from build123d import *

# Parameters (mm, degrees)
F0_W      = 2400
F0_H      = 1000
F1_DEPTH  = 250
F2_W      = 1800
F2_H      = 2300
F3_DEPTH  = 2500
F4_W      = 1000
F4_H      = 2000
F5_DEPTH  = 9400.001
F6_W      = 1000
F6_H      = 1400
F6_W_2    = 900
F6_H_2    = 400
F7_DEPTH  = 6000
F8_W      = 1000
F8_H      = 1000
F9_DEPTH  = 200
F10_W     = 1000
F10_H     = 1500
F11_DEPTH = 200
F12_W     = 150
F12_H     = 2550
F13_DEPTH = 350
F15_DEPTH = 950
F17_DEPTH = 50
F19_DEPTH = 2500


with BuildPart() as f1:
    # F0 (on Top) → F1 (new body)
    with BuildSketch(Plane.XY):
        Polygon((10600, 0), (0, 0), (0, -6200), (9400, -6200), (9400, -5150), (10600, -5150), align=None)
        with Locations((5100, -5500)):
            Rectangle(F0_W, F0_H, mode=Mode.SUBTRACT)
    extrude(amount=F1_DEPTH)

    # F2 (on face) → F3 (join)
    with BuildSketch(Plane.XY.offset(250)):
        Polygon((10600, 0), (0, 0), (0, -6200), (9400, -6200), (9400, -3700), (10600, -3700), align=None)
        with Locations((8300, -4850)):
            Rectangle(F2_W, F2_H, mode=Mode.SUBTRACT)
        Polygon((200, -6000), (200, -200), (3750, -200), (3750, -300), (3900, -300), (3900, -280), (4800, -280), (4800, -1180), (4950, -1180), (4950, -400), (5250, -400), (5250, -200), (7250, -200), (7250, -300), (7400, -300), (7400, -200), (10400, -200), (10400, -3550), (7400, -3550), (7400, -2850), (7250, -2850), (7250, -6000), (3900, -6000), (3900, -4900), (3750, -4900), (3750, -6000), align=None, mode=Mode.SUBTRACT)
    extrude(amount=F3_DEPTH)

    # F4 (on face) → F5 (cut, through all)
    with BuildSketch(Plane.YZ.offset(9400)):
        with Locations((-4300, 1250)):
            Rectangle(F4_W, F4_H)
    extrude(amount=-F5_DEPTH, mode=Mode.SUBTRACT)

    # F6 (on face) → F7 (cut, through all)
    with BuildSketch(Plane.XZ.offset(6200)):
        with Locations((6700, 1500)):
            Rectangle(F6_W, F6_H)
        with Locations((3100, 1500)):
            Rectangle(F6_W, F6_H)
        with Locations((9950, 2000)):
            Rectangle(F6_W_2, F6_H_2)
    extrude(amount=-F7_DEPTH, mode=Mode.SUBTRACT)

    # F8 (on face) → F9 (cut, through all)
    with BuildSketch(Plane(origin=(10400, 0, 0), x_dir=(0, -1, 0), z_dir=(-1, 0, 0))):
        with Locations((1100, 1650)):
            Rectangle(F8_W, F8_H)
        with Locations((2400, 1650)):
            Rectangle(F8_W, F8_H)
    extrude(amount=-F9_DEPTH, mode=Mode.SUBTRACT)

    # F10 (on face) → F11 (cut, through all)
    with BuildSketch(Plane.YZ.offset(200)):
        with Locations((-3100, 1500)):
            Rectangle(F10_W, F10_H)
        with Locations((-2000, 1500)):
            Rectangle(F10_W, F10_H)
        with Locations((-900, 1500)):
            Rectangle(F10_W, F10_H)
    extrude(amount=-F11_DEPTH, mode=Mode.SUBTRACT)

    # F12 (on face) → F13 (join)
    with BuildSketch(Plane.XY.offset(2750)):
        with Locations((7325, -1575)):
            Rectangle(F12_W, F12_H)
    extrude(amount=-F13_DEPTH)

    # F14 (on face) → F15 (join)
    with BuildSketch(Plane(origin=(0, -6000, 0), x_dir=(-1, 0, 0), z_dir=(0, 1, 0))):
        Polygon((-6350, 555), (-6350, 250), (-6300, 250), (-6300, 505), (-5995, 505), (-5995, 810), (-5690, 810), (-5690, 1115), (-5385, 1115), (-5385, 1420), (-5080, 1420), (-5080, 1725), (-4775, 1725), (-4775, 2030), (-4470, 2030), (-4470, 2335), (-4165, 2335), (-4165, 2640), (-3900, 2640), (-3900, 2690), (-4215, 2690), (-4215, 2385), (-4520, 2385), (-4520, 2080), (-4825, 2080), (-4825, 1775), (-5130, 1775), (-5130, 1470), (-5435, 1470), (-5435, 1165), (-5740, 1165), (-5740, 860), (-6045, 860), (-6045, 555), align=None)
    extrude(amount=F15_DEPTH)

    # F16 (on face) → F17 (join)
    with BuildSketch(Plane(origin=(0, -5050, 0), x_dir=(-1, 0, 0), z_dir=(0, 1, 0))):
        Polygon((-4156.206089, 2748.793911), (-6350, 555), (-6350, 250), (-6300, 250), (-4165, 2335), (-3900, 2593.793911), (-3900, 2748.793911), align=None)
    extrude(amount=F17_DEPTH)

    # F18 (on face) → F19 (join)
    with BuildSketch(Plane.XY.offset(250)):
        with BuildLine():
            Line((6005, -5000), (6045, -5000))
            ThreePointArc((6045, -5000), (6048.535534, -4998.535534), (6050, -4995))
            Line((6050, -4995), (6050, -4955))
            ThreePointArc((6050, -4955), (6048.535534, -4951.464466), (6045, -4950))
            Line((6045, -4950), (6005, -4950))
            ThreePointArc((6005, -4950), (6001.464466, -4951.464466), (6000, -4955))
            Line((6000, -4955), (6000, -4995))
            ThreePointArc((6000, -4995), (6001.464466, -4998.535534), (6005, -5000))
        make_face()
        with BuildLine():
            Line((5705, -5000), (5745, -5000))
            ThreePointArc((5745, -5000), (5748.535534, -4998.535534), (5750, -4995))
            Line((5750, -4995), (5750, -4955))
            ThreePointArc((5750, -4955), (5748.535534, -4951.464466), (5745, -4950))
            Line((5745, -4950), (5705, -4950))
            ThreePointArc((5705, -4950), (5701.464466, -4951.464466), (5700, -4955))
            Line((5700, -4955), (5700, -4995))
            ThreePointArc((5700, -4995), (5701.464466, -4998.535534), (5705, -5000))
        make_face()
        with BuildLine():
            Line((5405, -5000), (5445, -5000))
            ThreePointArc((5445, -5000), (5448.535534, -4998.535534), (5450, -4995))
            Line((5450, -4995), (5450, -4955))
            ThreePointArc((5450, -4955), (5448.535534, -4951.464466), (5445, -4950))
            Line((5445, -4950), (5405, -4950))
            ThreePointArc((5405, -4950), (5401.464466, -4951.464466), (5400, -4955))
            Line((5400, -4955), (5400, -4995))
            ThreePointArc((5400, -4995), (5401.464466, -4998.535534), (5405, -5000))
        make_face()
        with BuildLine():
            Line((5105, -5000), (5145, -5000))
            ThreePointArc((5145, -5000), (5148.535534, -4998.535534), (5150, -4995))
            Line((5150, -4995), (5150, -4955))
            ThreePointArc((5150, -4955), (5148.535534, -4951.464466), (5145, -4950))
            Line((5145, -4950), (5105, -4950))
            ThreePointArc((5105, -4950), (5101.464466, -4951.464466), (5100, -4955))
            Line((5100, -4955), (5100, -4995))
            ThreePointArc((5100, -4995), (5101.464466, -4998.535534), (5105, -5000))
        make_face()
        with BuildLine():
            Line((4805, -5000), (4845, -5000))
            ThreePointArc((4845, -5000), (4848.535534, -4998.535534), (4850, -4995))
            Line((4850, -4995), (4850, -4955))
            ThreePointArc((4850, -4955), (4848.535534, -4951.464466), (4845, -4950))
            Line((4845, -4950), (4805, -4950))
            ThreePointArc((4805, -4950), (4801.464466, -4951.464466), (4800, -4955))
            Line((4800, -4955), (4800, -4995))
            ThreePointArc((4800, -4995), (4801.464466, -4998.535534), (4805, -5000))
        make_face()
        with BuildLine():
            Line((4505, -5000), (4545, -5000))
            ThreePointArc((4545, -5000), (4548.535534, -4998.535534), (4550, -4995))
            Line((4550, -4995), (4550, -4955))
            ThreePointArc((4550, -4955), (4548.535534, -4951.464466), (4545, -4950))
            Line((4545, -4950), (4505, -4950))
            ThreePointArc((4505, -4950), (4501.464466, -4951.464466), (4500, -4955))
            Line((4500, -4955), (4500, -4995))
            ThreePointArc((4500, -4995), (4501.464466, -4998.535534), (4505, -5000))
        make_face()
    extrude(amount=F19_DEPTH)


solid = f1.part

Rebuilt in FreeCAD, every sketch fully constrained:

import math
import FreeCAD as App
import Part
import Sketcher
from FreeCAD import Vector
Q = App.Units.Quantity

doc = App.newDocument("Part")
body = doc.addObject("PartDesign::Body", "Body")

sketch1 = body.newObject("Sketcher::SketchObject", "Sketch")
sketch1.AttachmentSupport = (doc.getObject("XY_Plane"), [""])
sketch1.MapMode = "FlatFace"
sketch1.addGeometry([
    Part.LineSegment(Vector(10600, 0, 0), Vector(0, 0, 0)),
    Part.LineSegment(Vector(0, 0, 0), Vector(0, -6200, 0)),
    Part.LineSegment(Vector(0, -6200, 0), Vector(9400, -6200, 0)),
    Part.LineSegment(Vector(9400, -6200, 0), Vector(9400, -5150, 0)),
    Part.LineSegment(Vector(9400, -5150, 0), Vector(10600, -5150, 0)),
    Part.LineSegment(Vector(10600, -5150, 0), Vector(10600, 0, 0)),
    Part.LineSegment(Vector(6300, -6000, 0), Vector(3900, -6000, 0)),
    Part.LineSegment(Vector(3900, -6000, 0), Vector(3900, -5000, 0)),
    Part.LineSegment(Vector(3900, -5000, 0), Vector(6300, -5000, 0)),
    Part.LineSegment(Vector(6300, -5000, 0), Vector(6300, -6000, 0)),
], False)
sketch1.addConstraint([
    Sketcher.Constraint("Coincident", 0, 2, 1, 1),
    Sketcher.Constraint("Coincident", 1, 2, 2, 1),
    Sketcher.Constraint("Coincident", 2, 2, 3, 1),
    Sketcher.Constraint("Coincident", 3, 2, 4, 1),
    Sketcher.Constraint("Coincident", 4, 2, 5, 1),
    Sketcher.Constraint("Coincident", 5, 2, 0, 1),
    Sketcher.Constraint("Coincident", 6, 2, 7, 1),
    Sketcher.Constraint("Coincident", 7, 2, 8, 1),
    Sketcher.Constraint("Coincident", 8, 2, 9, 1),
    Sketcher.Constraint("Coincident", 9, 2, 6, 1),
    Sketcher.Constraint("Horizontal", 0),
    Sketcher.Constraint("Vertical", 1),
    Sketcher.Constraint("Horizontal", 2),
    Sketcher.Constraint("Vertical", 3),
    Sketcher.Constraint("Horizontal", 4),
    Sketcher.Constraint("Vertical", 5),
    Sketcher.Constraint("Horizontal", 6),
    Sketcher.Constraint("Vertical", 7),
    Sketcher.Constraint("Horizontal", 8),
    Sketcher.Constraint("Vertical", 9),
    Sketcher.Constraint("Coincident", 0, 2, -1, 1),
    Sketcher.Constraint("DistanceX", 0, 2, 0, 1, Q("10600 mm")),
    Sketcher.Constraint("DistanceX", 2, 1, 2, 2, Q("9400 mm")),
    Sketcher.Constraint("DistanceX", 6, 2, 6, 1, Q("2400 mm")),
    Sketcher.Constraint("DistanceY", 1, 2, 1, 1, Q("6200 mm")),
    Sketcher.Constraint("DistanceY", 3, 1, 3, 2, Q("1050 mm")),
    Sketcher.Constraint("DistanceY", 7, 1, 7, 2, Q("1000 mm")),
    Sketcher.Constraint("DistanceX", -1, 1, 6, 2, Q("3900 mm")),
    Sketcher.Constraint("DistanceY", 6, 2, -1, 1, Q("6000 mm")),
])
pad1 = body.newObject("PartDesign::Pad", "Pad")
pad1.Profile = sketch1
pad1.Length = 250

sketch2 = body.newObject("Sketcher::SketchObject", "Sketch001")
sketch2.AttachmentSupport = (doc.getObject("XY_Plane"), [""])
sketch2.MapMode = "FlatFace"
sketch2.AttachmentOffset = App.Placement(Vector(0, 0, 250), App.Rotation())
sketch2.addGeometry([
    Part.LineSegment(Vector(10600, 0, 0), Vector(0, 0, 0)),
    Part.LineSegment(Vector(0, 0, 0), Vector(0, -6200, 0)),
    Part.LineSegment(Vector(0, -6200, 0), Vector(9400, -6200, 0)),
    Part.LineSegment(Vector(9400, -6200, 0), Vector(9400, -3700, 0)),
    Part.LineSegment(Vector(9400, -3700, 0), Vector(10600, -3700, 0)),
    Part.LineSegment(Vector(10600, -3700, 0), Vector(10600, 0, 0)),
    Part.LineSegment(Vector(9200, -6000, 0), Vector(7400, -6000, 0)),
    Part.LineSegment(Vector(7400, -6000, 0), Vector(7400, -3700, 0)),
    Part.LineSegment(Vector(7400, -3700, 0), Vector(9200, -3700, 0)),
    Part.LineSegment(Vector(9200, -3700, 0), Vector(9200, -6000, 0)),
    Part.LineSegment(Vector(3750, -6000, 0), Vector(200, -6000, 0)),
    Part.LineSegment(Vector(200, -6000, 0), Vector(200, -200, 0)),
    Part.LineSegment(Vector(200, -200, 0), Vector(3750, -200, 0)),
    Part.LineSegment(Vector(3750, -200, 0), Vector(3750, -300, 0)),
    Part.LineSegment(Vector(3750, -300, 0), Vector(3900, -300, 0)),
    Part.LineSegment(Vector(3900, -300, 0), Vector(3900, -280, 0)),
    Part.LineSegment(Vector(3900, -280, 0), Vector(4800, -280, 0)),
    Part.LineSegment(Vector(4800, -280, 0), Vector(4800, -1180, 0)),
    Part.LineSegment(Vector(4800, -1180, 0), Vector(4950, -1180, 0)),
    Part.LineSegment(Vector(4950, -1180, 0), Vector(4950, -400, 0)),
    Part.LineSegment(Vector(4950, -400, 0), Vector(5250, -400, 0)),
    Part.LineSegment(Vector(5250, -400, 0), Vector(5250, -200, 0)),
    Part.LineSegment(Vector(5250, -200, 0), Vector(7250, -200, 0)),
    Part.LineSegment(Vector(7250, -200, 0), Vector(7250, -300, 0)),
    Part.LineSegment(Vector(7250, -300, 0), Vector(7400, -300, 0)),
    Part.LineSegment(Vector(7400, -300, 0), Vector(7400, -200, 0)),
    Part.LineSegment(Vector(7400, -200, 0), Vector(10400, -200, 0)),
    Part.LineSegment(Vector(10400, -200, 0), Vector(10400, -3550, 0)),
    Part.LineSegment(Vector(10400, -3550, 0), Vector(7400, -3550, 0)),
    Part.LineSegment(Vector(7400, -3550, 0), Vector(7400, -2850, 0)),
    Part.LineSegment(Vector(7400, -2850, 0), Vector(7250, -2850, 0)),
    Part.LineSegment(Vector(7250, -2850, 0), Vector(7250, -6000, 0)),
    Part.LineSegment(Vector(7250, -6000, 0), Vector(3900, -6000, 0)),
    Part.LineSegment(Vector(3900, -6000, 0), Vector(3900, -4900, 0)),
    Part.LineSegment(Vector(3900, -4900, 0), Vector(3750, -4900, 0)),
    Part.LineSegment(Vector(3750, -4900, 0), Vector(3750, -6000, 0)),
], False)
sketch2.addConstraint([
    Sketcher.Constraint("Coincident", 0, 2, 1, 1),
    Sketcher.Constraint("Coincident", 1, 2, 2, 1),
    Sketcher.Constraint("Coincident", 2, 2, 3, 1),
    Sketcher.Constraint("Coincident", 3, 2, 4, 1),
    Sketcher.Constraint("Coincident", 4, 2, 5, 1),
    Sketcher.Constraint("Coincident", 5, 2, 0, 1),
    Sketcher.Constraint("Coincident", 6, 2, 7, 1),
    Sketcher.Constraint("Coincident", 7, 2, 8, 1),
    Sketcher.Constraint("Coincident", 8, 2, 9, 1),
    Sketcher.Constraint("Coincident", 9, 2, 6, 1),
    Sketcher.Constraint("Coincident", 10, 2, 11, 1),
    Sketcher.Constraint("Coincident", 11, 2, 12, 1),
    Sketcher.Constraint("Coincident", 12, 2, 13, 1),
    Sketcher.Constraint("Coincident", 13, 2, 14, 1),
    Sketcher.Constraint("Coincident", 14, 2, 15, 1),
    Sketcher.Constraint("Coincident", 15, 2, 16, 1),
    Sketcher.Constraint("Coincident", 16, 2, 17, 1),
    Sketcher.Constraint("Coincident", 17, 2, 18, 1),
    Sketcher.Constraint("Coincident", 18, 2, 19, 1),
    Sketcher.Constraint("Coincident", 19, 2, 20, 1),
    Sketcher.Constraint("Coincident", 20, 2, 21, 1),
    Sketcher.Constraint("Coincident", 21, 2, 22, 1),
    Sketcher.Constraint("Coincident", 22, 2, 23, 1),
    Sketcher.Constraint("Coincident", 23, 2, 24, 1),
    Sketcher.Constraint("Coincident", 24, 2, 25, 1),
    Sketcher.Constraint("Coincident", 25, 2, 26, 1),
    Sketcher.Constraint("Coincident", 26, 2, 27, 1),
    Sketcher.Constraint("Coincident", 27, 2, 28, 1),
    Sketcher.Constraint("Coincident", 28, 2, 29, 1),
    Sketcher.Constraint("Coincident", 29, 2, 30, 1),
    Sketcher.Constraint("Coincident", 30, 2, 31, 1),
    Sketcher.Constraint("Coincident", 31, 2, 32, 1),
    Sketcher.Constraint("Coincident", 32, 2, 33, 1),
    Sketcher.Constraint("Coincident", 33, 2, 34, 1),
    Sketcher.Constraint("Coincident", 34, 2, 35, 1),
    Sketcher.Constraint("Coincident", 35, 2, 10, 1),
    Sketcher.Constraint("Horizontal", 0),
    Sketcher.Constraint("Vertical", 1),
    Sketcher.Constraint("Horizontal", 2),
    Sketcher.Constraint("Vertical", 3),
    Sketcher.Constraint("Horizontal", 4),
    Sketcher.Constraint("Vertical", 5),
    Sketcher.Constraint("Horizontal", 6),
    Sketcher.Constraint("Vertical", 7),
    Sketcher.Constraint("Horizontal", 8),
    Sketcher.Constraint("Vertical", 9),
    Sketcher.Constraint("Horizontal", 10),
    Sketcher.Constraint("Vertical", 11),
    Sketcher.Constraint("Horizontal", 12),
    Sketcher.Constraint("Vertical", 13),
    Sketcher.Constraint("Horizontal", 14),
    Sketcher.Constraint("Vertical", 15),
    Sketcher.Constraint("Horizontal", 16),
    Sketcher.Constraint("Vertical", 17),
    Sketcher.Constraint("Horizontal", 18),
    Sketcher.Constraint("Vertical", 19),
    Sketcher.Constraint("Horizontal", 20),
    Sketcher.Constraint("Vertical", 21),
    Sketcher.Constraint("Horizontal", 22),
    Sketcher.Constraint("Vertical", 23),
    Sketcher.Constraint("Horizontal", 24),
    Sketcher.Constraint("Vertical", 25),
    Sketcher.Constraint("Horizontal", 26),
    Sketcher.Constraint("Vertical", 27),
    Sketcher.Constraint("Horizontal", 28),
    Sketcher.Constraint("Vertical", 29),
    Sketcher.Constraint("Horizontal", 30),
    Sketcher.Constraint("Vertical", 31),
    Sketcher.Constraint("Horizontal", 32),
    Sketcher.Constraint("Vertical", 33),
    Sketcher.Constraint("Horizontal", 34),
    Sketcher.Constraint("Vertical", 35),
    Sketcher.Constraint("Coincident", 0, 2, -1, 1),
    Sketcher.Constraint("Horizontal", 4, 2, 7, 2),
    Sketcher.Constraint("Horizontal", 9, 2, 10, 2),
    Sketcher.Constraint("Horizontal", 12, 2, 21, 2),
    Sketcher.Constraint("Horizontal", 14, 2, 23, 2),
    Sketcher.Constraint("Horizontal", 22, 2, 25, 2),
    Sketcher.Constraint("Horizontal", 10, 2, 31, 2),
    Sketcher.Constraint("Vertical", 7, 2, 24, 2),
    Sketcher.Constraint("Vertical", 25, 2, 28, 2),
    Sketcher.Constraint("Vertical", 23, 2, 30, 2),
    Sketcher.Constraint("Vertical", 15, 2, 32, 2),
    Sketcher.Constraint("Vertical", 13, 2, 34, 2),
    Sketcher.Constraint("Equal", 14, 18),
    Sketcher.Constraint("Equal", 18, 24),
    Sketcher.Constraint("Equal", 16, 17),
    Sketcher.Constraint("Equal", 32, 27),
    Sketcher.Constraint("DistanceX", 0, 2, 0, 1, Q("10600 mm")),
    Sketcher.Constraint("DistanceX", 2, 1, 2, 2, Q("9400 mm")),
    Sketcher.Constraint("DistanceX", 6, 2, 6, 1, Q("1800 mm")),
    Sketcher.Constraint("DistanceX", 10, 2, 10, 1, Q("3550 mm")),
    Sketcher.Constraint("DistanceX", 14, 1, 14, 2, Q("150 mm")),
    Sketcher.Constraint("DistanceX", 16, 1, 16, 2, Q("900 mm")),
    Sketcher.Constraint("DistanceX", 20, 1, 20, 2, Q("300 mm")),
    Sketcher.Constraint("DistanceX", 22, 1, 22, 2, Q("2000 mm")),
    Sketcher.Constraint("DistanceX", 26, 1, 26, 2, Q("3000 mm")),
    Sketcher.Constraint("DistanceY", 1, 2, 1, 1, Q("6200 mm")),
    Sketcher.Constraint("DistanceY", 3, 1, 3, 2, Q("2500 mm")),
    Sketcher.Constraint("DistanceY", 7, 1, 7, 2, Q("2300 mm")),
    Sketcher.Constraint("DistanceY", 11, 1, 11, 2, Q("5800 mm")),
    Sketcher.Constraint("DistanceY", 13, 2, 13, 1, Q("100 mm")),
    Sketcher.Constraint("DistanceY", 15, 1, 15, 2, Q("20 mm")),
    Sketcher.Constraint("DistanceY", 19, 1, 19, 2, Q("780 mm")),
    Sketcher.Constraint("DistanceY", 29, 1, 29, 2, Q("700 mm")),
    Sketcher.Constraint("DistanceY", 33, 1, 33, 2, Q("1100 mm")),
    Sketcher.Constraint("DistanceX", -1, 1, 6, 2, Q("7400 mm")),
])
pad2 = body.newObject("PartDesign::Pad", "Pad001")
pad2.Profile = sketch2
pad2.Length = 2500

sketch3 = body.newObject("Sketcher::SketchObject", "Sketch002")
sketch3.AttachmentSupport = (doc.getObject("YZ_Plane"), [""])
sketch3.MapMode = "FlatFace"
sketch3.AttachmentOffset = App.Placement(Vector(0, 0, 9400), App.Rotation())
sketch3.addGeometry([
    Part.LineSegment(Vector(-4800, 2250, 0), Vector(-4800, 250, 0)),
    Part.LineSegment(Vector(-4800, 250, 0), Vector(-3800, 250, 0)),
    Part.LineSegment(Vector(-3800, 250, 0), Vector(-3800, 2250, 0)),
    Part.LineSegment(Vector(-3800, 2250, 0), Vector(-4800, 2250, 0)),
], False)
sketch3.addConstraint([
    Sketcher.Constraint("Coincident", 0, 2, 1, 1),
    Sketcher.Constraint("Coincident", 1, 2, 2, 1),
    Sketcher.Constraint("Coincident", 2, 2, 3, 1),
    Sketcher.Constraint("Coincident", 3, 2, 0, 1),
    Sketcher.Constraint("Vertical", 0),
    Sketcher.Constraint("Horizontal", 1),
    Sketcher.Constraint("Vertical", 2),
    Sketcher.Constraint("Horizontal", 3),
    Sketcher.Constraint("DistanceX", 1, 1, 1, 2, Q("1000 mm")),
    Sketcher.Constraint("DistanceY", 0, 2, 0, 1, Q("2000 mm")),
    Sketcher.Constraint("DistanceX", 0, 2, -1, 1, Q("4800 mm")),
    Sketcher.Constraint("DistanceY", -1, 1, 0, 2, Q("250 mm")),
])
pocket1 = body.newObject("PartDesign::Pocket", "Pocket")
pocket1.Profile = sketch3
pocket1.Type = "ThroughAll"

sketch4 = body.newObject("Sketcher::SketchObject", "Sketch003")
sketch4.AttachmentSupport = (doc.getObject("XZ_Plane"), [""])
sketch4.MapMode = "FlatFace"
sketch4.AttachmentOffset = App.Placement(Vector(0, 0, 6200), App.Rotation())
sketch4.addGeometry([
    Part.LineSegment(Vector(6200, 2200, 0), Vector(6200, 800, 0)),
    Part.LineSegment(Vector(6200, 800, 0), Vector(7200, 800, 0)),
    Part.LineSegment(Vector(7200, 800, 0), Vector(7200, 2200, 0)),
    Part.LineSegment(Vector(7200, 2200, 0), Vector(6200, 2200, 0)),
    Part.LineSegment(Vector(2600, 2200, 0), Vector(2600, 800, 0)),
    Part.LineSegment(Vector(2600, 800, 0), Vector(3600, 800, 0)),
    Part.LineSegment(Vector(3600, 800, 0), Vector(3600, 2200, 0)),
    Part.LineSegment(Vector(3600, 2200, 0), Vector(2600, 2200, 0)),
    Part.LineSegment(Vector(9500, 2200, 0), Vector(9500, 1800, 0)),
    Part.LineSegment(Vector(9500, 1800, 0), Vector(10400, 1800, 0)),
    Part.LineSegment(Vector(10400, 1800, 0), Vector(10400, 2200, 0)),
    Part.LineSegment(Vector(10400, 2200, 0), Vector(9500, 2200, 0)),
], False)
sketch4.addConstraint([
    Sketcher.Constraint("Coincident", 0, 2, 1, 1),
    Sketcher.Constraint("Coincident", 1, 2, 2, 1),
    Sketcher.Constraint("Coincident", 2, 2, 3, 1),
    Sketcher.Constraint("Coincident", 3, 2, 0, 1),
    Sketcher.Constraint("Coincident", 4, 2, 5, 1),
    Sketcher.Constraint("Coincident", 5, 2, 6, 1),
    Sketcher.Constraint("Coincident", 6, 2, 7, 1),
    Sketcher.Constraint("Coincident", 7, 2, 4, 1),
    Sketcher.Constraint("Coincident", 8, 2, 9, 1),
    Sketcher.Constraint("Coincident", 9, 2, 10, 1),
    Sketcher.Constraint("Coincident", 10, 2, 11, 1),
    Sketcher.Constraint("Coincident", 11, 2, 8, 1),
    Sketcher.Constraint("Vertical", 0),
    Sketcher.Constraint("Horizontal", 1),
    Sketcher.Constraint("Vertical", 2),
    Sketcher.Constraint("Horizontal", 3),
    Sketcher.Constraint("Vertical", 4),
    Sketcher.Constraint("Horizontal", 5),
    Sketcher.Constraint("Vertical", 6),
    Sketcher.Constraint("Horizontal", 7),
    Sketcher.Constraint("Vertical", 8),
    Sketcher.Constraint("Horizontal", 9),
    Sketcher.Constraint("Vertical", 10),
    Sketcher.Constraint("Horizontal", 11),
    Sketcher.Constraint("Horizontal", 1, 2, 4, 2),
    Sketcher.Constraint("Horizontal", 3, 2, 6, 2),
    Sketcher.Constraint("Horizontal", 7, 2, 10, 2),
    Sketcher.Constraint("Equal", 3, 5),
    Sketcher.Constraint("DistanceX", 1, 1, 1, 2, Q("1000 mm")),
    Sketcher.Constraint("DistanceX", 9, 1, 9, 2, Q("900 mm")),
    Sketcher.Constraint("DistanceY", 0, 2, 0, 1, Q("1400 mm")),
    Sketcher.Constraint("DistanceY", 8, 2, 8, 1, Q("400 mm")),
    Sketcher.Constraint("DistanceX", -1, 1, 0, 2, Q("6200 mm")),
    Sketcher.Constraint("DistanceY", -1, 1, 0, 2, Q("800 mm")),
    Sketcher.Constraint("DistanceX", -1, 1, 4, 2, Q("2600 mm")),
    Sketcher.Constraint("DistanceX", -1, 1, 8, 2, Q("9500 mm")),
])
pocket2 = body.newObject("PartDesign::Pocket", "Pocket001")
pocket2.Profile = sketch4
pocket2.Length = 6000

sketch5 = body.newObject("Sketcher::SketchObject", "Sketch004")
sketch5.AttachmentSupport = (doc.getObject("YZ_Plane"), [""])
sketch5.MapMode = "FlatFace"
sketch5.AttachmentOffset = App.Placement(Vector(0, 0, 10400), App.Rotation())
sketch5.addGeometry([
    Part.LineSegment(Vector(-600, 2150, 0), Vector(-600, 1150, 0)),
    Part.LineSegment(Vector(-600, 1150, 0), Vector(-1600, 1150, 0)),
    Part.LineSegment(Vector(-1600, 1150, 0), Vector(-1600, 2150, 0)),
    Part.LineSegment(Vector(-1600, 2150, 0), Vector(-600, 2150, 0)),
    Part.LineSegment(Vector(-1900, 2150, 0), Vector(-1900, 1150, 0)),
    Part.LineSegment(Vector(-1900, 1150, 0), Vector(-2900, 1150, 0)),
    Part.LineSegment(Vector(-2900, 1150, 0), Vector(-2900, 2150, 0)),
    Part.LineSegment(Vector(-2900, 2150, 0), Vector(-1900, 2150, 0)),
], False)
sketch5.addConstraint([
    Sketcher.Constraint("Coincident", 0, 2, 1, 1),
    Sketcher.Constraint("Coincident", 1, 2, 2, 1),
    Sketcher.Constraint("Coincident", 2, 2, 3, 1),
    Sketcher.Constraint("Coincident", 3, 2, 0, 1),
    Sketcher.Constraint("Coincident", 4, 2, 5, 1),
    Sketcher.Constraint("Coincident", 5, 2, 6, 1),
    Sketcher.Constraint("Coincident", 6, 2, 7, 1),
    Sketcher.Constraint("Coincident", 7, 2, 4, 1),
    Sketcher.Constraint("Vertical", 0),
    Sketcher.Constraint("Horizontal", 1),
    Sketcher.Constraint("Vertical", 2),
    Sketcher.Constraint("Horizontal", 3),
    Sketcher.Constraint("Vertical", 4),
    Sketcher.Constraint("Horizontal", 5),
    Sketcher.Constraint("Vertical", 6),
    Sketcher.Constraint("Horizontal", 7),
    Sketcher.Constraint("Horizontal", 1, 2, 4, 2),
    Sketcher.Constraint("Horizontal", 3, 2, 6, 2),
    Sketcher.Constraint("Equal", 3, 5),
    Sketcher.Constraint("Equal", 7, 0),
    Sketcher.Constraint("DistanceX", 1, 2, 1, 1, Q("1000 mm")),
    Sketcher.Constraint("DistanceX", 0, 2, -1, 1, Q("600 mm")),
    Sketcher.Constraint("DistanceY", -1, 1, 0, 2, Q("1150 mm")),
    Sketcher.Constraint("DistanceX", 4, 2, -1, 1, Q("1900 mm")),
])
pocket3 = body.newObject("PartDesign::Pocket", "Pocket002")
pocket3.Profile = sketch5
pocket3.Type = "ThroughAll"
pocket3.Reversed = True

sketch6 = body.newObject("Sketcher::SketchObject", "Sketch005")
sketch6.AttachmentSupport = (doc.getObject("YZ_Plane"), [""])
sketch6.MapMode = "FlatFace"
sketch6.AttachmentOffset = App.Placement(Vector(0, 0, 200), App.Rotation())
sketch6.addGeometry([
    Part.LineSegment(Vector(-3600, 2250, 0), Vector(-3600, 750, 0)),
    Part.LineSegment(Vector(-3600, 750, 0), Vector(-2600, 750, 0)),
    Part.LineSegment(Vector(-2600, 750, 0), Vector(-2600, 2250, 0)),
    Part.LineSegment(Vector(-2600, 2250, 0), Vector(-3600, 2250, 0)),
    Part.LineSegment(Vector(-2500, 2250, 0), Vector(-2500, 750, 0)),
    Part.LineSegment(Vector(-2500, 750, 0), Vector(-1500, 750, 0)),
    Part.LineSegment(Vector(-1500, 750, 0), Vector(-1500, 2250, 0)),
    Part.LineSegment(Vector(-1500, 2250, 0), Vector(-2500, 2250, 0)),
    Part.LineSegment(Vector(-1400, 2250, 0), Vector(-1400, 750, 0)),
    Part.LineSegment(Vector(-1400, 750, 0), Vector(-400, 750, 0)),
    Part.LineSegment(Vector(-400, 750, 0), Vector(-400, 2250, 0)),
    Part.LineSegment(Vector(-400, 2250, 0), Vector(-1400, 2250, 0)),
], False)
sketch6.addConstraint([
    Sketcher.Constraint("Coincident", 0, 2, 1, 1),
    Sketcher.Constraint("Coincident", 1, 2, 2, 1),
    Sketcher.Constraint("Coincident", 2, 2, 3, 1),
    Sketcher.Constraint("Coincident", 3, 2, 0, 1),
    Sketcher.Constraint("Coincident", 4, 2, 5, 1),
    Sketcher.Constraint("Coincident", 5, 2, 6, 1),
    Sketcher.Constraint("Coincident", 6, 2, 7, 1),
    Sketcher.Constraint("Coincident", 7, 2, 4, 1),
    Sketcher.Constraint("Coincident", 8, 2, 9, 1),
    Sketcher.Constraint("Coincident", 9, 2, 10, 1),
    Sketcher.Constraint("Coincident", 10, 2, 11, 1),
    Sketcher.Constraint("Coincident", 11, 2, 8, 1),
    Sketcher.Constraint("Vertical", 0),
    Sketcher.Constraint("Horizontal", 1),
    Sketcher.Constraint("Vertical", 2),
    Sketcher.Constraint("Horizontal", 3),
    Sketcher.Constraint("Vertical", 4),
    Sketcher.Constraint("Horizontal", 5),
    Sketcher.Constraint("Vertical", 6),
    Sketcher.Constraint("Horizontal", 7),
    Sketcher.Constraint("Vertical", 8),
    Sketcher.Constraint("Horizontal", 9),
    Sketcher.Constraint("Vertical", 10),
    Sketcher.Constraint("Horizontal", 11),
    Sketcher.Constraint("Horizontal", 1, 2, 4, 2),
    Sketcher.Constraint("Horizontal", 3, 2, 6, 2),
    Sketcher.Constraint("Horizontal", 5, 2, 8, 2),
    Sketcher.Constraint("Horizontal", 7, 2, 10, 2),
    Sketcher.Constraint("Equal", 3, 5),
    Sketcher.Constraint("Equal", 7, 9),
    Sketcher.Constraint("DistanceX", 1, 1, 1, 2, Q("1000 mm")),
    Sketcher.Constraint("DistanceY", 0, 2, 0, 1, Q("1500 mm")),
    Sketcher.Constraint("DistanceX", 0, 2, -1, 1, Q("3600 mm")),
    Sketcher.Constraint("DistanceY", -1, 1, 0, 2, Q("750 mm")),
    Sketcher.Constraint("DistanceX", 4, 2, -1, 1, Q("2500 mm")),
    Sketcher.Constraint("DistanceX", 8, 2, -1, 1, Q("1400 mm")),
])
pocket4 = body.newObject("PartDesign::Pocket", "Pocket003")
pocket4.Profile = sketch6
pocket4.Type = "ThroughAll"

sketch7 = body.newObject("Sketcher::SketchObject", "Sketch006")
sketch7.AttachmentSupport = (doc.getObject("XY_Plane"), [""])
sketch7.MapMode = "FlatFace"
sketch7.AttachmentOffset = App.Placement(Vector(0, 0, 2750), App.Rotation())
sketch7.addGeometry([
    Part.LineSegment(Vector(7250, -300, 0), Vector(7250, -2850, 0)),
    Part.LineSegment(Vector(7250, -2850, 0), Vector(7400, -2850, 0)),
    Part.LineSegment(Vector(7400, -2850, 0), Vector(7400, -300, 0)),
    Part.LineSegment(Vector(7400, -300, 0), Vector(7250, -300, 0)),
], False)
sketch7.addConstraint([
    Sketcher.Constraint("Coincident", 0, 2, 1, 1),
    Sketcher.Constraint("Coincident", 1, 2, 2, 1),
    Sketcher.Constraint("Coincident", 2, 2, 3, 1),
    Sketcher.Constraint("Coincident", 3, 2, 0, 1),
    Sketcher.Constraint("Vertical", 0),
    Sketcher.Constraint("Horizontal", 1),
    Sketcher.Constraint("Vertical", 2),
    Sketcher.Constraint("Horizontal", 3),
    Sketcher.Constraint("DistanceX", 1, 1, 1, 2, Q("150 mm")),
    Sketcher.Constraint("DistanceY", 0, 2, 0, 1, Q("2550 mm")),
    Sketcher.Constraint("DistanceX", -1, 1, 0, 2, Q("7250 mm")),
    Sketcher.Constraint("DistanceY", 0, 2, -1, 1, Q("2850 mm")),
])
pad3 = body.newObject("PartDesign::Pad", "Pad002")
pad3.Profile = sketch7
pad3.Length = 350
pad3.Reversed = True

sketch8 = body.newObject("Sketcher::SketchObject", "Sketch007")
sketch8.AttachmentSupport = (doc.getObject("XZ_Plane"), [""])
sketch8.MapMode = "FlatFace"
sketch8.AttachmentOffset = App.Placement(Vector(0, 0, 6000), App.Rotation())
sketch8.addGeometry([
    Part.LineSegment(Vector(6350, 555, 0), Vector(6350, 250, 0)),
    Part.LineSegment(Vector(6350, 250, 0), Vector(6300, 250, 0)),
    Part.LineSegment(Vector(6300, 250, 0), Vector(6300, 505, 0)),
    Part.LineSegment(Vector(6300, 505, 0), Vector(5995, 505, 0)),
    Part.LineSegment(Vector(5995, 505, 0), Vector(5995, 810, 0)),
    Part.LineSegment(Vector(5995, 810, 0), Vector(5690, 810, 0)),
    Part.LineSegment(Vector(5690, 810, 0), Vector(5690, 1115, 0)),
    Part.LineSegment(Vector(5690, 1115, 0), Vector(5385, 1115, 0)),
    Part.LineSegment(Vector(5385, 1115, 0), Vector(5385, 1420, 0)),
    Part.LineSegment(Vector(5385, 1420, 0), Vector(5080, 1420, 0)),
    Part.LineSegment(Vector(5080, 1420, 0), Vector(5080, 1725, 0)),
    Part.LineSegment(Vector(5080, 1725, 0), Vector(4775, 1725, 0)),
    Part.LineSegment(Vector(4775, 1725, 0), Vector(4775, 2030, 0)),
    Part.LineSegment(Vector(4775, 2030, 0), Vector(4470, 2030, 0)),
    Part.LineSegment(Vector(4470, 2030, 0), Vector(4470, 2335, 0)),
    Part.LineSegment(Vector(4470, 2335, 0), Vector(4165, 2335, 0)),
    Part.LineSegment(Vector(4165, 2335, 0), Vector(4165, 2640, 0)),
    Part.LineSegment(Vector(4165, 2640, 0), Vector(3900, 2640, 0)),
    Part.LineSegment(Vector(3900, 2640, 0), Vector(3900, 2690, 0)),
    Part.LineSegment(Vector(3900, 2690, 0), Vector(4215, 2690, 0)),
    Part.LineSegment(Vector(4215, 2690, 0), Vector(4215, 2385, 0)),
    Part.LineSegment(Vector(4215, 2385, 0), Vector(4520, 2385, 0)),
    Part.LineSegment(Vector(4520, 2385, 0), Vector(4520, 2080, 0)),
    Part.LineSegment(Vector(4520, 2080, 0), Vector(4825, 2080, 0)),
    Part.LineSegment(Vector(4825, 2080, 0), Vector(4825, 1775, 0)),
    Part.LineSegment(Vector(4825, 1775, 0), Vector(5130, 1775, 0)),
    Part.LineSegment(Vector(5130, 1775, 0), Vector(5130, 1470, 0)),
    Part.LineSegment(Vector(5130, 1470, 0), Vector(5435, 1470, 0)),
    Part.LineSegment(Vector(5435, 1470, 0), Vector(5435, 1165, 0)),
    Part.LineSegment(Vector(5435, 1165, 0), Vector(5740, 1165, 0)),
    Part.LineSegment(Vector(5740, 1165, 0), Vector(5740, 860, 0)),
    Part.LineSegment(Vector(5740, 860, 0), Vector(6045, 860, 0)),
    Part.LineSegment(Vector(6045, 860, 0), Vector(6045, 555, 0)),
    Part.LineSegment(Vector(6045, 555, 0), Vector(6350, 555, 0)),
], False)
sketch8.addConstraint([
    Sketcher.Constraint("Coincident", 0, 2, 1, 1),
    Sketcher.Constraint("Coincident", 1, 2, 2, 1),
    Sketcher.Constraint("Coincident", 2, 2, 3, 1),
    Sketcher.Constraint("Coincident", 3, 2, 4, 1),
    Sketcher.Constraint("Coincident", 4, 2, 5, 1),
    Sketcher.Constraint("Coincident", 5, 2, 6, 1),
    Sketcher.Constraint("Coincident", 6, 2, 7, 1),
    Sketcher.Constraint("Coincident", 7, 2, 8, 1),
    Sketcher.Constraint("Coincident", 8, 2, 9, 1),
    Sketcher.Constraint("Coincident", 9, 2, 10, 1),
    Sketcher.Constraint("Coincident", 10, 2, 11, 1),
    Sketcher.Constraint("Coincident", 11, 2, 12, 1),
    Sketcher.Constraint("Coincident", 12, 2, 13, 1),
    Sketcher.Constraint("Coincident", 13, 2, 14, 1),
    Sketcher.Constraint("Coincident", 14, 2, 15, 1),
    Sketcher.Constraint("Coincident", 15, 2, 16, 1),
    Sketcher.Constraint("Coincident", 16, 2, 17, 1),
    Sketcher.Constraint("Coincident", 17, 2, 18, 1),
    Sketcher.Constraint("Coincident", 18, 2, 19, 1),
    Sketcher.Constraint("Coincident", 19, 2, 20, 1),
    Sketcher.Constraint("Coincident", 20, 2, 21, 1),
    Sketcher.Constraint("Coincident", 21, 2, 22, 1),
    Sketcher.Constraint("Coincident", 22, 2, 23, 1),
    Sketcher.Constraint("Coincident", 23, 2, 24, 1),
    Sketcher.Constraint("Coincident", 24, 2, 25, 1),
    Sketcher.Constraint("Coincident", 25, 2, 26, 1),
    Sketcher.Constraint("Coincident", 26, 2, 27, 1),
    Sketcher.Constraint("Coincident", 27, 2, 28, 1),
    Sketcher.Constraint("Coincident", 28, 2, 29, 1),
    Sketcher.Constraint("Coincident", 29, 2, 30, 1),
    Sketcher.Constraint("Coincident", 30, 2, 31, 1),
    Sketcher.Constraint("Coincident", 31, 2, 32, 1),
    Sketcher.Constraint("Coincident", 32, 2, 33, 1),
    Sketcher.Constraint("Coincident", 33, 2, 0, 1),
    Sketcher.Constraint("Vertical", 0),
    Sketcher.Constraint("Horizontal", 1),
    Sketcher.Constraint("Vertical", 2),
    Sketcher.Constraint("Horizontal", 3),
    Sketcher.Constraint("Vertical", 4),
    Sketcher.Constraint("Horizontal", 5),
    Sketcher.Constraint("Vertical", 6),
    Sketcher.Constraint("Horizontal", 7),
    Sketcher.Constraint("Vertical", 8),
    Sketcher.Constraint("Horizontal", 9),
    Sketcher.Constraint("Vertical", 10),
    Sketcher.Constraint("Horizontal", 11),
    Sketcher.Constraint("Vertical", 12),
    Sketcher.Constraint("Horizontal", 13),
    Sketcher.Constraint("Vertical", 14),
    Sketcher.Constraint("Horizontal", 15),
    Sketcher.Constraint("Vertical", 16),
    Sketcher.Constraint("Horizontal", 17),
    Sketcher.Constraint("Vertical", 18),
    Sketcher.Constraint("Horizontal", 19),
    Sketcher.Constraint("Vertical", 20),
    Sketcher.Constraint("Horizontal", 21),
    Sketcher.Constraint("Vertical", 22),
    Sketcher.Constraint("Horizontal", 23),
    Sketcher.Constraint("Vertical", 24),
    Sketcher.Constraint("Horizontal", 25),
    Sketcher.Constraint("Vertical", 26),
    Sketcher.Constraint("Horizontal", 27),
    Sketcher.Constraint("Vertical", 28),
    Sketcher.Constraint("Horizontal", 29),
    Sketcher.Constraint("Vertical", 30),
    Sketcher.Constraint("Horizontal", 31),
    Sketcher.Constraint("Vertical", 32),
    Sketcher.Constraint("Horizontal", 33),
    Sketcher.Constraint("Equal", 3, 5),
    Sketcher.Constraint("Equal", 5, 7),
    Sketcher.Constraint("Equal", 7, 9),
    Sketcher.Constraint("Equal", 9, 11),
    Sketcher.Constraint("Equal", 11, 13),
    Sketcher.Constraint("Equal", 13, 15),
    Sketcher.Constraint("Equal", 15, 21),
    Sketcher.Constraint("Equal", 21, 23),
    Sketcher.Constraint("Equal", 23, 25),
    Sketcher.Constraint("Equal", 25, 27),
    Sketcher.Constraint("Equal", 27, 29),
    Sketcher.Constraint("Equal", 29, 31),
    Sketcher.Constraint("Equal", 31, 33),
    Sketcher.Constraint("Equal", 33, 0),
    Sketcher.Constraint("Equal", 0, 4),
    Sketcher.Constraint("Equal", 4, 6),
    Sketcher.Constraint("Equal", 6, 8),
    Sketcher.Constraint("Equal", 8, 10),
    Sketcher.Constraint("Equal", 10, 12),
    Sketcher.Constraint("Equal", 12, 14),
    Sketcher.Constraint("Equal", 14, 16),
    Sketcher.Constraint("Equal", 1, 18),
    Sketcher.Constraint("Equal", 16, 20),
    Sketcher.Constraint("Equal", 20, 22),
    Sketcher.Constraint("Equal", 22, 24),
    Sketcher.Constraint("Equal", 24, 26),
    Sketcher.Constraint("Equal", 26, 28),
    Sketcher.Constraint("Equal", 28, 30),
    Sketcher.Constraint("Equal", 30, 32),
    Sketcher.Constraint("DistanceX", 1, 2, 1, 1, Q("50 mm")),
    Sketcher.Constraint("DistanceX", 3, 2, 3, 1, Q("305 mm")),
    Sketcher.Constraint("DistanceX", 17, 2, 17, 1, Q("265 mm")),
    Sketcher.Constraint("DistanceX", -1, 1, 0, 2, Q("6350 mm")),
    Sketcher.Constraint("DistanceY", -1, 1, 0, 2, Q("250 mm")),
])
pad4 = body.newObject("PartDesign::Pad", "Pad003")
pad4.Profile = sketch8
pad4.Length = 950
pad4.Reversed = True

sketch9 = body.newObject("Sketcher::SketchObject", "Sketch008")
sketch9.AttachmentSupport = (doc.getObject("XZ_Plane"), [""])
sketch9.MapMode = "FlatFace"
sketch9.AttachmentOffset = App.Placement(Vector(0, 0, 5050), App.Rotation())
sketch9.addGeometry([
    Part.LineSegment(Vector(4156, 2749, 0), Vector(6350, 555, 0)),
    Part.LineSegment(Vector(6350, 555, 0), Vector(6350, 250, 0)),
    Part.LineSegment(Vector(6350, 250, 0), Vector(6300, 250, 0)),
    Part.LineSegment(Vector(6300, 250, 0), Vector(4165, 2335, 0)),
    Part.LineSegment(Vector(4165, 2335, 0), Vector(3900, 2594, 0)),
    Part.LineSegment(Vector(3900, 2594, 0), Vector(3900, 2749, 0)),
    Part.LineSegment(Vector(3900, 2749, 0), Vector(4156, 2749, 0)),
], False)
sketch9.addConstraint([
    Sketcher.Constraint("Coincident", 0, 2, 1, 1),
    Sketcher.Constraint("Coincident", 1, 2, 2, 1),
    Sketcher.Constraint("Coincident", 2, 2, 3, 1),
    Sketcher.Constraint("Coincident", 3, 2, 4, 1),
    Sketcher.Constraint("Coincident", 4, 2, 5, 1),
    Sketcher.Constraint("Coincident", 5, 2, 6, 1),
    Sketcher.Constraint("Coincident", 6, 2, 0, 1),
    Sketcher.Constraint("Vertical", 1),
    Sketcher.Constraint("Horizontal", 2),
    Sketcher.Constraint("Vertical", 5),
    Sketcher.Constraint("Horizontal", 6),
    Sketcher.Constraint("Parallel", 3, 4),
    Sketcher.Constraint("DistanceX", 2, 2, 2, 1, Q("50 mm")),
    Sketcher.Constraint("DistanceY", 1, 2, 1, 1, Q("305 mm")),
    Sketcher.Constraint("DistanceY", 5, 1, 5, 2, Q("155 mm")),
    Sketcher.Constraint("Angle", 0, Q("-45 deg")),
    Sketcher.Constraint("DistanceX", -1, 1, 0, 2, Q("6350 mm")),
    Sketcher.Constraint("DistanceY", -1, 1, 0, 2, Q("555 mm")),
    Sketcher.Constraint("DistanceX", -1, 1, 3, 2, Q("4165 mm")),
    Sketcher.Constraint("DistanceY", -1, 1, 3, 2, Q("2335 mm")),
    Sketcher.Constraint("DistanceX", -1, 1, 4, 2, Q("3900 mm")),
])
pad5 = body.newObject("PartDesign::Pad", "Pad004")
pad5.Profile = sketch9
pad5.Length = 50
pad5.Reversed = True

sketch10 = body.newObject("Sketcher::SketchObject", "Sketch009")
sketch10.AttachmentSupport = (doc.getObject("XY_Plane"), [""])
sketch10.MapMode = "FlatFace"
sketch10.AttachmentOffset = App.Placement(Vector(0, 0, 250), App.Rotation())
sketch10.addGeometry([
    Part.LineSegment(Vector(6005, -5000, 0), Vector(6045, -5000, 0)),
    Part.ArcOfCircle(Part.Circle(Vector(6045, -4995, 0), Vector(0, 0, 1), 5), math.radians(-90), math.radians(0)),
    Part.LineSegment(Vector(6050, -4995, 0), Vector(6050, -4955, 0)),
    Part.ArcOfCircle(Part.Circle(Vector(6045, -4955, 0), Vector(0, 0, 1), 5), math.radians(0), math.radians(90)),
    Part.LineSegment(Vector(6045, -4950, 0), Vector(6005, -4950, 0)),
    Part.ArcOfCircle(Part.Circle(Vector(6005, -4955, 0), Vector(0, 0, 1), 5), math.radians(90), math.radians(180)),
    Part.LineSegment(Vector(6000, -4955, 0), Vector(6000, -4995, 0)),
    Part.ArcOfCircle(Part.Circle(Vector(6005, -4995, 0), Vector(0, 0, 1), 5), math.radians(180), math.radians(270)),
    Part.LineSegment(Vector(5705, -5000, 0), Vector(5745, -5000, 0)),
    Part.ArcOfCircle(Part.Circle(Vector(5745, -4995, 0), Vector(0, 0, 1), 5), math.radians(-90), math.radians(0)),
    Part.LineSegment(Vector(5750, -4995, 0), Vector(5750, -4955, 0)),
    Part.ArcOfCircle(Part.Circle(Vector(5745, -4955, 0), Vector(0, 0, 1), 5), math.radians(0), math.radians(90)),
    Part.LineSegment(Vector(5745, -4950, 0), Vector(5705, -4950, 0)),
    Part.ArcOfCircle(Part.Circle(Vector(5705, -4955, 0), Vector(0, 0, 1), 5), math.radians(90), math.radians(180)),
    Part.LineSegment(Vector(5700, -4955, 0), Vector(5700, -4995, 0)),
    Part.ArcOfCircle(Part.Circle(Vector(5705, -4995, 0), Vector(0, 0, 1), 5), math.radians(180), math.radians(270)),
    Part.LineSegment(Vector(5405, -5000, 0), Vector(5445, -5000, 0)),
    Part.ArcOfCircle(Part.Circle(Vector(5445, -4995, 0), Vector(0, 0, 1), 5), math.radians(-90), math.radians(0)),
    Part.LineSegment(Vector(5450, -4995, 0), Vector(5450, -4955, 0)),
    Part.ArcOfCircle(Part.Circle(Vector(5445, -4955, 0), Vector(0, 0, 1), 5), math.radians(0), math.radians(90)),
    Part.LineSegment(Vector(5445, -4950, 0), Vector(5405, -4950, 0)),
    Part.ArcOfCircle(Part.Circle(Vector(5405, -4955, 0), Vector(0, 0, 1), 5), math.radians(90), math.radians(180)),
    Part.LineSegment(Vector(5400, -4955, 0), Vector(5400, -4995, 0)),
    Part.ArcOfCircle(Part.Circle(Vector(5405, -4995, 0), Vector(0, 0, 1), 5), math.radians(180), math.radians(270)),
    Part.LineSegment(Vector(5105, -5000, 0), Vector(5145, -5000, 0)),
    Part.ArcOfCircle(Part.Circle(Vector(5145, -4995, 0), Vector(0, 0, 1), 5), math.radians(-90), math.radians(0)),
    Part.LineSegment(Vector(5150, -4995, 0), Vector(5150, -4955, 0)),
    Part.ArcOfCircle(Part.Circle(Vector(5145, -4955, 0), Vector(0, 0, 1), 5), math.radians(0), math.radians(90)),
    Part.LineSegment(Vector(5145, -4950, 0), Vector(5105, -4950, 0)),
    Part.ArcOfCircle(Part.Circle(Vector(5105, -4955, 0), Vector(0, 0, 1), 5), math.radians(90), math.radians(180)),
    Part.LineSegment(Vector(5100, -4955, 0), Vector(5100, -4995, 0)),
    Part.ArcOfCircle(Part.Circle(Vector(5105, -4995, 0), Vector(0, 0, 1), 5), math.radians(180), math.radians(270)),
    Part.LineSegment(Vector(4805, -5000, 0), Vector(4845, -5000, 0)),
    Part.ArcOfCircle(Part.Circle(Vector(4845, -4995, 0), Vector(0, 0, 1), 5), math.radians(-90), math.radians(0)),
    Part.LineSegment(Vector(4850, -4995, 0), Vector(4850, -4955, 0)),
    Part.ArcOfCircle(Part.Circle(Vector(4845, -4955, 0), Vector(0, 0, 1), 5), math.radians(0), math.radians(90)),
    Part.LineSegment(Vector(4845, -4950, 0), Vector(4805, -4950, 0)),
    Part.ArcOfCircle(Part.Circle(Vector(4805, -4955, 0), Vector(0, 0, 1), 5), math.radians(90), math.radians(180)),
    Part.LineSegment(Vector(4800, -4955, 0), Vector(4800, -4995, 0)),
    Part.ArcOfCircle(Part.Circle(Vector(4805, -4995, 0), Vector(0, 0, 1), 5), math.radians(180), math.radians(270)),
    Part.LineSegment(Vector(4505, -5000, 0), Vector(4545, -5000, 0)),
    Part.ArcOfCircle(Part.Circle(Vector(4545, -4995, 0), Vector(0, 0, 1), 5), math.radians(-90), math.radians(0)),
    Part.LineSegment(Vector(4550, -4995, 0), Vector(4550, -4955, 0)),
    Part.ArcOfCircle(Part.Circle(Vector(4545, -4955, 0), Vector(0, 0, 1), 5), math.radians(0), math.radians(90)),
    Part.LineSegment(Vector(4545, -4950, 0), Vector(4505, -4950, 0)),
    Part.ArcOfCircle(Part.Circle(Vector(4505, -4955, 0), Vector(0, 0, 1), 5), math.radians(90), math.radians(180)),
    Part.LineSegment(Vector(4500, -4955, 0), Vector(4500, -4995, 0)),
    Part.ArcOfCircle(Part.Circle(Vector(4505, -4995, 0), Vector(0, 0, 1), 5), math.radians(180), math.radians(270)),
], False)
sketch10.addConstraint([
    Sketcher.Constraint("Tangent", 0, 2, 1, 1),
    Sketcher.Constraint("Tangent", 1, 2, 2, 1),
    Sketcher.Constraint("Tangent", 2, 2, 3, 1),
    Sketcher.Constraint("Tangent", 3, 2, 4, 1),
    Sketcher.Constraint("Tangent", 4, 2, 5, 1),
    Sketcher.Constraint("Tangent", 5, 2, 6, 1),
    Sketcher.Constraint("Tangent", 6, 2, 7, 1),
    Sketcher.Constraint("Tangent", 7, 2, 0, 1),
    Sketcher.Constraint("Tangent", 8, 2, 9, 1),
    Sketcher.Constraint("Tangent", 9, 2, 10, 1),
    Sketcher.Constraint("Tangent", 10, 2, 11, 1),
    Sketcher.Constraint("Tangent", 11, 2, 12, 1),
    Sketcher.Constraint("Tangent", 12, 2, 13, 1),
    Sketcher.Constraint("Tangent", 13, 2, 14, 1),
    Sketcher.Constraint("Tangent", 14, 2, 15, 1),
    Sketcher.Constraint("Tangent", 15, 2, 8, 1),
    Sketcher.Constraint("Tangent", 16, 2, 17, 1),
    Sketcher.Constraint("Tangent", 17, 2, 18, 1),
    Sketcher.Constraint("Tangent", 18, 2, 19, 1),
    Sketcher.Constraint("Tangent", 19, 2, 20, 1),
    Sketcher.Constraint("Tangent", 20, 2, 21, 1),
    Sketcher.Constraint("Tangent", 21, 2, 22, 1),
    Sketcher.Constraint("Tangent", 22, 2, 23, 1),
    Sketcher.Constraint("Tangent", 23, 2, 16, 1),
    Sketcher.Constraint("Tangent", 24, 2, 25, 1),
    Sketcher.Constraint("Tangent", 25, 2, 26, 1),
    Sketcher.Constraint("Tangent", 26, 2, 27, 1),
    Sketcher.Constraint("Tangent", 27, 2, 28, 1),
    Sketcher.Constraint("Tangent", 28, 2, 29, 1),
    Sketcher.Constraint("Tangent", 29, 2, 30, 1),
    Sketcher.Constraint("Tangent", 30, 2, 31, 1),
    Sketcher.Constraint("Tangent", 31, 2, 24, 1),
    Sketcher.Constraint("Tangent", 32, 2, 33, 1),
    Sketcher.Constraint("Tangent", 33, 2, 34, 1),
    Sketcher.Constraint("Tangent", 34, 2, 35, 1),
    Sketcher.Constraint("Tangent", 35, 2, 36, 1),
    Sketcher.Constraint("Tangent", 36, 2, 37, 1),
    Sketcher.Constraint("Tangent", 37, 2, 38, 1),
    Sketcher.Constraint("Tangent", 38, 2, 39, 1),
    Sketcher.Constraint("Tangent", 39, 2, 32, 1),
    Sketcher.Constraint("Tangent", 40, 2, 41, 1),
    Sketcher.Constraint("Tangent", 41, 2, 42, 1),
    Sketcher.Constraint("Tangent", 42, 2, 43, 1),
    Sketcher.Constraint("Tangent", 43, 2, 44, 1),
    Sketcher.Constraint("Tangent", 44, 2, 45, 1),
    Sketcher.Constraint("Tangent", 45, 2, 46, 1),
    Sketcher.Constraint("Tangent", 46, 2, 47, 1),
    Sketcher.Constraint("Tangent", 47, 2, 40, 1),
    Sketcher.Constraint("Horizontal", 0),
    Sketcher.Constraint("Vertical", 2),
    Sketcher.Constraint("Horizontal", 4),
    Sketcher.Constraint("Vertical", 6),
    Sketcher.Constraint("Horizontal", 8),
    Sketcher.Constraint("Vertical", 10),
    Sketcher.Constraint("Horizontal", 12),
    Sketcher.Constraint("Vertical", 14),
    Sketcher.Constraint("Horizontal", 16),
    Sketcher.Constraint("Vertical", 18),
    Sketcher.Constraint("Horizontal", 20),
    Sketcher.Constraint("Vertical", 22),
    Sketcher.Constraint("Horizontal", 24),
    Sketcher.Constraint("Vertical", 26),
    Sketcher.Constraint("Horizontal", 28),
    Sketcher.Constraint("Vertical", 30),
    Sketcher.Constraint("Horizontal", 32),
    Sketcher.Constraint("Vertical", 34),
    Sketcher.Constraint("Horizontal", 36),
    Sketcher.Constraint("Vertical", 38),
    Sketcher.Constraint("Horizontal", 40),
    Sketcher.Constraint("Vertical", 42),
    Sketcher.Constraint("Horizontal", 44),
    Sketcher.Constraint("Vertical", 46),
    Sketcher.Constraint("Equal", 1, 3),
    Sketcher.Constraint("Equal", 3, 5),
    Sketcher.Constraint("Equal", 5, 7),
    Sketcher.Constraint("Equal", 7, 9),
    Sketcher.Constraint("Equal", 9, 11),
    Sketcher.Constraint("Equal", 11, 13),
    Sketcher.Constraint("Equal", 13, 15),
    Sketcher.Constraint("Equal", 15, 17),
    Sketcher.Constraint("Equal", 17, 19),
    Sketcher.Constraint("Equal", 19, 21),
    Sketcher.Constraint("Equal", 21, 23),
    Sketcher.Constraint("Equal", 23, 25),
    Sketcher.Constraint("Equal", 25, 27),
    Sketcher.Constraint("Equal", 27, 29),
    Sketcher.Constraint("Equal", 29, 31),
    Sketcher.Constraint("Equal", 31, 33),
    Sketcher.Constraint("Equal", 33, 35),
    Sketcher.Constraint("Equal", 35, 37),
    Sketcher.Constraint("Equal", 37, 39),
    Sketcher.Constraint("Equal", 39, 41),
    Sketcher.Constraint("Equal", 41, 43),
    Sketcher.Constraint("Equal", 43, 45),
    Sketcher.Constraint("Equal", 45, 47),
    Sketcher.Constraint("Horizontal", 7, 3, 9, 3),
    Sketcher.Constraint("Horizontal", 5, 3, 11, 3),
    Sketcher.Constraint("Horizontal", 15, 3, 17, 3),
    Sketcher.Constraint("Horizontal", 13, 3, 19, 3),
    Sketcher.Constraint("Horizontal", 23, 3, 25, 3),
    Sketcher.Constraint("Horizontal", 21, 3, 27, 3),
    Sketcher.Constraint("Horizontal", 31, 3, 33, 3),
    Sketcher.Constraint("Horizontal", 29, 3, 35, 3),
    Sketcher.Constraint("Horizontal", 39, 3, 41, 3),
    Sketcher.Constraint("Horizontal", 37, 3, 43, 3),
    Sketcher.Constraint("Equal", 4, 8),
    Sketcher.Constraint("Equal", 12, 16),
    Sketcher.Constraint("Equal", 20, 24),
    Sketcher.Constraint("Equal", 28, 32),
    Sketcher.Constraint("Equal", 36, 40),
    Sketcher.Constraint("Equal", 44, 2),
    Sketcher.Constraint("Radius", 1, Q("5 mm")),
    Sketcher.Constraint("DistanceX", 0, 1, 0, 2, Q("40 mm")),
    Sketcher.Constraint("DistanceX", -1, 1, 1, 3, Q("6045 mm")),
    Sketcher.Constraint("DistanceY", 1, 3, -1, 1, Q("4995 mm")),
    Sketcher.Constraint("DistanceX", -1, 1, 9, 3, Q("5745 mm")),
    Sketcher.Constraint("DistanceX", -1, 1, 17, 3, Q("5445 mm")),
    Sketcher.Constraint("DistanceX", -1, 1, 25, 3, Q("5145 mm")),
    Sketcher.Constraint("DistanceX", -1, 1, 33, 3, Q("4845 mm")),
    Sketcher.Constraint("DistanceX", -1, 1, 41, 3, Q("4545 mm")),
])
pad6 = body.newObject("PartDesign::Pad", "Pad005")
pad6.Profile = sketch10
pad6.Length = 2500

doc.recompute()
